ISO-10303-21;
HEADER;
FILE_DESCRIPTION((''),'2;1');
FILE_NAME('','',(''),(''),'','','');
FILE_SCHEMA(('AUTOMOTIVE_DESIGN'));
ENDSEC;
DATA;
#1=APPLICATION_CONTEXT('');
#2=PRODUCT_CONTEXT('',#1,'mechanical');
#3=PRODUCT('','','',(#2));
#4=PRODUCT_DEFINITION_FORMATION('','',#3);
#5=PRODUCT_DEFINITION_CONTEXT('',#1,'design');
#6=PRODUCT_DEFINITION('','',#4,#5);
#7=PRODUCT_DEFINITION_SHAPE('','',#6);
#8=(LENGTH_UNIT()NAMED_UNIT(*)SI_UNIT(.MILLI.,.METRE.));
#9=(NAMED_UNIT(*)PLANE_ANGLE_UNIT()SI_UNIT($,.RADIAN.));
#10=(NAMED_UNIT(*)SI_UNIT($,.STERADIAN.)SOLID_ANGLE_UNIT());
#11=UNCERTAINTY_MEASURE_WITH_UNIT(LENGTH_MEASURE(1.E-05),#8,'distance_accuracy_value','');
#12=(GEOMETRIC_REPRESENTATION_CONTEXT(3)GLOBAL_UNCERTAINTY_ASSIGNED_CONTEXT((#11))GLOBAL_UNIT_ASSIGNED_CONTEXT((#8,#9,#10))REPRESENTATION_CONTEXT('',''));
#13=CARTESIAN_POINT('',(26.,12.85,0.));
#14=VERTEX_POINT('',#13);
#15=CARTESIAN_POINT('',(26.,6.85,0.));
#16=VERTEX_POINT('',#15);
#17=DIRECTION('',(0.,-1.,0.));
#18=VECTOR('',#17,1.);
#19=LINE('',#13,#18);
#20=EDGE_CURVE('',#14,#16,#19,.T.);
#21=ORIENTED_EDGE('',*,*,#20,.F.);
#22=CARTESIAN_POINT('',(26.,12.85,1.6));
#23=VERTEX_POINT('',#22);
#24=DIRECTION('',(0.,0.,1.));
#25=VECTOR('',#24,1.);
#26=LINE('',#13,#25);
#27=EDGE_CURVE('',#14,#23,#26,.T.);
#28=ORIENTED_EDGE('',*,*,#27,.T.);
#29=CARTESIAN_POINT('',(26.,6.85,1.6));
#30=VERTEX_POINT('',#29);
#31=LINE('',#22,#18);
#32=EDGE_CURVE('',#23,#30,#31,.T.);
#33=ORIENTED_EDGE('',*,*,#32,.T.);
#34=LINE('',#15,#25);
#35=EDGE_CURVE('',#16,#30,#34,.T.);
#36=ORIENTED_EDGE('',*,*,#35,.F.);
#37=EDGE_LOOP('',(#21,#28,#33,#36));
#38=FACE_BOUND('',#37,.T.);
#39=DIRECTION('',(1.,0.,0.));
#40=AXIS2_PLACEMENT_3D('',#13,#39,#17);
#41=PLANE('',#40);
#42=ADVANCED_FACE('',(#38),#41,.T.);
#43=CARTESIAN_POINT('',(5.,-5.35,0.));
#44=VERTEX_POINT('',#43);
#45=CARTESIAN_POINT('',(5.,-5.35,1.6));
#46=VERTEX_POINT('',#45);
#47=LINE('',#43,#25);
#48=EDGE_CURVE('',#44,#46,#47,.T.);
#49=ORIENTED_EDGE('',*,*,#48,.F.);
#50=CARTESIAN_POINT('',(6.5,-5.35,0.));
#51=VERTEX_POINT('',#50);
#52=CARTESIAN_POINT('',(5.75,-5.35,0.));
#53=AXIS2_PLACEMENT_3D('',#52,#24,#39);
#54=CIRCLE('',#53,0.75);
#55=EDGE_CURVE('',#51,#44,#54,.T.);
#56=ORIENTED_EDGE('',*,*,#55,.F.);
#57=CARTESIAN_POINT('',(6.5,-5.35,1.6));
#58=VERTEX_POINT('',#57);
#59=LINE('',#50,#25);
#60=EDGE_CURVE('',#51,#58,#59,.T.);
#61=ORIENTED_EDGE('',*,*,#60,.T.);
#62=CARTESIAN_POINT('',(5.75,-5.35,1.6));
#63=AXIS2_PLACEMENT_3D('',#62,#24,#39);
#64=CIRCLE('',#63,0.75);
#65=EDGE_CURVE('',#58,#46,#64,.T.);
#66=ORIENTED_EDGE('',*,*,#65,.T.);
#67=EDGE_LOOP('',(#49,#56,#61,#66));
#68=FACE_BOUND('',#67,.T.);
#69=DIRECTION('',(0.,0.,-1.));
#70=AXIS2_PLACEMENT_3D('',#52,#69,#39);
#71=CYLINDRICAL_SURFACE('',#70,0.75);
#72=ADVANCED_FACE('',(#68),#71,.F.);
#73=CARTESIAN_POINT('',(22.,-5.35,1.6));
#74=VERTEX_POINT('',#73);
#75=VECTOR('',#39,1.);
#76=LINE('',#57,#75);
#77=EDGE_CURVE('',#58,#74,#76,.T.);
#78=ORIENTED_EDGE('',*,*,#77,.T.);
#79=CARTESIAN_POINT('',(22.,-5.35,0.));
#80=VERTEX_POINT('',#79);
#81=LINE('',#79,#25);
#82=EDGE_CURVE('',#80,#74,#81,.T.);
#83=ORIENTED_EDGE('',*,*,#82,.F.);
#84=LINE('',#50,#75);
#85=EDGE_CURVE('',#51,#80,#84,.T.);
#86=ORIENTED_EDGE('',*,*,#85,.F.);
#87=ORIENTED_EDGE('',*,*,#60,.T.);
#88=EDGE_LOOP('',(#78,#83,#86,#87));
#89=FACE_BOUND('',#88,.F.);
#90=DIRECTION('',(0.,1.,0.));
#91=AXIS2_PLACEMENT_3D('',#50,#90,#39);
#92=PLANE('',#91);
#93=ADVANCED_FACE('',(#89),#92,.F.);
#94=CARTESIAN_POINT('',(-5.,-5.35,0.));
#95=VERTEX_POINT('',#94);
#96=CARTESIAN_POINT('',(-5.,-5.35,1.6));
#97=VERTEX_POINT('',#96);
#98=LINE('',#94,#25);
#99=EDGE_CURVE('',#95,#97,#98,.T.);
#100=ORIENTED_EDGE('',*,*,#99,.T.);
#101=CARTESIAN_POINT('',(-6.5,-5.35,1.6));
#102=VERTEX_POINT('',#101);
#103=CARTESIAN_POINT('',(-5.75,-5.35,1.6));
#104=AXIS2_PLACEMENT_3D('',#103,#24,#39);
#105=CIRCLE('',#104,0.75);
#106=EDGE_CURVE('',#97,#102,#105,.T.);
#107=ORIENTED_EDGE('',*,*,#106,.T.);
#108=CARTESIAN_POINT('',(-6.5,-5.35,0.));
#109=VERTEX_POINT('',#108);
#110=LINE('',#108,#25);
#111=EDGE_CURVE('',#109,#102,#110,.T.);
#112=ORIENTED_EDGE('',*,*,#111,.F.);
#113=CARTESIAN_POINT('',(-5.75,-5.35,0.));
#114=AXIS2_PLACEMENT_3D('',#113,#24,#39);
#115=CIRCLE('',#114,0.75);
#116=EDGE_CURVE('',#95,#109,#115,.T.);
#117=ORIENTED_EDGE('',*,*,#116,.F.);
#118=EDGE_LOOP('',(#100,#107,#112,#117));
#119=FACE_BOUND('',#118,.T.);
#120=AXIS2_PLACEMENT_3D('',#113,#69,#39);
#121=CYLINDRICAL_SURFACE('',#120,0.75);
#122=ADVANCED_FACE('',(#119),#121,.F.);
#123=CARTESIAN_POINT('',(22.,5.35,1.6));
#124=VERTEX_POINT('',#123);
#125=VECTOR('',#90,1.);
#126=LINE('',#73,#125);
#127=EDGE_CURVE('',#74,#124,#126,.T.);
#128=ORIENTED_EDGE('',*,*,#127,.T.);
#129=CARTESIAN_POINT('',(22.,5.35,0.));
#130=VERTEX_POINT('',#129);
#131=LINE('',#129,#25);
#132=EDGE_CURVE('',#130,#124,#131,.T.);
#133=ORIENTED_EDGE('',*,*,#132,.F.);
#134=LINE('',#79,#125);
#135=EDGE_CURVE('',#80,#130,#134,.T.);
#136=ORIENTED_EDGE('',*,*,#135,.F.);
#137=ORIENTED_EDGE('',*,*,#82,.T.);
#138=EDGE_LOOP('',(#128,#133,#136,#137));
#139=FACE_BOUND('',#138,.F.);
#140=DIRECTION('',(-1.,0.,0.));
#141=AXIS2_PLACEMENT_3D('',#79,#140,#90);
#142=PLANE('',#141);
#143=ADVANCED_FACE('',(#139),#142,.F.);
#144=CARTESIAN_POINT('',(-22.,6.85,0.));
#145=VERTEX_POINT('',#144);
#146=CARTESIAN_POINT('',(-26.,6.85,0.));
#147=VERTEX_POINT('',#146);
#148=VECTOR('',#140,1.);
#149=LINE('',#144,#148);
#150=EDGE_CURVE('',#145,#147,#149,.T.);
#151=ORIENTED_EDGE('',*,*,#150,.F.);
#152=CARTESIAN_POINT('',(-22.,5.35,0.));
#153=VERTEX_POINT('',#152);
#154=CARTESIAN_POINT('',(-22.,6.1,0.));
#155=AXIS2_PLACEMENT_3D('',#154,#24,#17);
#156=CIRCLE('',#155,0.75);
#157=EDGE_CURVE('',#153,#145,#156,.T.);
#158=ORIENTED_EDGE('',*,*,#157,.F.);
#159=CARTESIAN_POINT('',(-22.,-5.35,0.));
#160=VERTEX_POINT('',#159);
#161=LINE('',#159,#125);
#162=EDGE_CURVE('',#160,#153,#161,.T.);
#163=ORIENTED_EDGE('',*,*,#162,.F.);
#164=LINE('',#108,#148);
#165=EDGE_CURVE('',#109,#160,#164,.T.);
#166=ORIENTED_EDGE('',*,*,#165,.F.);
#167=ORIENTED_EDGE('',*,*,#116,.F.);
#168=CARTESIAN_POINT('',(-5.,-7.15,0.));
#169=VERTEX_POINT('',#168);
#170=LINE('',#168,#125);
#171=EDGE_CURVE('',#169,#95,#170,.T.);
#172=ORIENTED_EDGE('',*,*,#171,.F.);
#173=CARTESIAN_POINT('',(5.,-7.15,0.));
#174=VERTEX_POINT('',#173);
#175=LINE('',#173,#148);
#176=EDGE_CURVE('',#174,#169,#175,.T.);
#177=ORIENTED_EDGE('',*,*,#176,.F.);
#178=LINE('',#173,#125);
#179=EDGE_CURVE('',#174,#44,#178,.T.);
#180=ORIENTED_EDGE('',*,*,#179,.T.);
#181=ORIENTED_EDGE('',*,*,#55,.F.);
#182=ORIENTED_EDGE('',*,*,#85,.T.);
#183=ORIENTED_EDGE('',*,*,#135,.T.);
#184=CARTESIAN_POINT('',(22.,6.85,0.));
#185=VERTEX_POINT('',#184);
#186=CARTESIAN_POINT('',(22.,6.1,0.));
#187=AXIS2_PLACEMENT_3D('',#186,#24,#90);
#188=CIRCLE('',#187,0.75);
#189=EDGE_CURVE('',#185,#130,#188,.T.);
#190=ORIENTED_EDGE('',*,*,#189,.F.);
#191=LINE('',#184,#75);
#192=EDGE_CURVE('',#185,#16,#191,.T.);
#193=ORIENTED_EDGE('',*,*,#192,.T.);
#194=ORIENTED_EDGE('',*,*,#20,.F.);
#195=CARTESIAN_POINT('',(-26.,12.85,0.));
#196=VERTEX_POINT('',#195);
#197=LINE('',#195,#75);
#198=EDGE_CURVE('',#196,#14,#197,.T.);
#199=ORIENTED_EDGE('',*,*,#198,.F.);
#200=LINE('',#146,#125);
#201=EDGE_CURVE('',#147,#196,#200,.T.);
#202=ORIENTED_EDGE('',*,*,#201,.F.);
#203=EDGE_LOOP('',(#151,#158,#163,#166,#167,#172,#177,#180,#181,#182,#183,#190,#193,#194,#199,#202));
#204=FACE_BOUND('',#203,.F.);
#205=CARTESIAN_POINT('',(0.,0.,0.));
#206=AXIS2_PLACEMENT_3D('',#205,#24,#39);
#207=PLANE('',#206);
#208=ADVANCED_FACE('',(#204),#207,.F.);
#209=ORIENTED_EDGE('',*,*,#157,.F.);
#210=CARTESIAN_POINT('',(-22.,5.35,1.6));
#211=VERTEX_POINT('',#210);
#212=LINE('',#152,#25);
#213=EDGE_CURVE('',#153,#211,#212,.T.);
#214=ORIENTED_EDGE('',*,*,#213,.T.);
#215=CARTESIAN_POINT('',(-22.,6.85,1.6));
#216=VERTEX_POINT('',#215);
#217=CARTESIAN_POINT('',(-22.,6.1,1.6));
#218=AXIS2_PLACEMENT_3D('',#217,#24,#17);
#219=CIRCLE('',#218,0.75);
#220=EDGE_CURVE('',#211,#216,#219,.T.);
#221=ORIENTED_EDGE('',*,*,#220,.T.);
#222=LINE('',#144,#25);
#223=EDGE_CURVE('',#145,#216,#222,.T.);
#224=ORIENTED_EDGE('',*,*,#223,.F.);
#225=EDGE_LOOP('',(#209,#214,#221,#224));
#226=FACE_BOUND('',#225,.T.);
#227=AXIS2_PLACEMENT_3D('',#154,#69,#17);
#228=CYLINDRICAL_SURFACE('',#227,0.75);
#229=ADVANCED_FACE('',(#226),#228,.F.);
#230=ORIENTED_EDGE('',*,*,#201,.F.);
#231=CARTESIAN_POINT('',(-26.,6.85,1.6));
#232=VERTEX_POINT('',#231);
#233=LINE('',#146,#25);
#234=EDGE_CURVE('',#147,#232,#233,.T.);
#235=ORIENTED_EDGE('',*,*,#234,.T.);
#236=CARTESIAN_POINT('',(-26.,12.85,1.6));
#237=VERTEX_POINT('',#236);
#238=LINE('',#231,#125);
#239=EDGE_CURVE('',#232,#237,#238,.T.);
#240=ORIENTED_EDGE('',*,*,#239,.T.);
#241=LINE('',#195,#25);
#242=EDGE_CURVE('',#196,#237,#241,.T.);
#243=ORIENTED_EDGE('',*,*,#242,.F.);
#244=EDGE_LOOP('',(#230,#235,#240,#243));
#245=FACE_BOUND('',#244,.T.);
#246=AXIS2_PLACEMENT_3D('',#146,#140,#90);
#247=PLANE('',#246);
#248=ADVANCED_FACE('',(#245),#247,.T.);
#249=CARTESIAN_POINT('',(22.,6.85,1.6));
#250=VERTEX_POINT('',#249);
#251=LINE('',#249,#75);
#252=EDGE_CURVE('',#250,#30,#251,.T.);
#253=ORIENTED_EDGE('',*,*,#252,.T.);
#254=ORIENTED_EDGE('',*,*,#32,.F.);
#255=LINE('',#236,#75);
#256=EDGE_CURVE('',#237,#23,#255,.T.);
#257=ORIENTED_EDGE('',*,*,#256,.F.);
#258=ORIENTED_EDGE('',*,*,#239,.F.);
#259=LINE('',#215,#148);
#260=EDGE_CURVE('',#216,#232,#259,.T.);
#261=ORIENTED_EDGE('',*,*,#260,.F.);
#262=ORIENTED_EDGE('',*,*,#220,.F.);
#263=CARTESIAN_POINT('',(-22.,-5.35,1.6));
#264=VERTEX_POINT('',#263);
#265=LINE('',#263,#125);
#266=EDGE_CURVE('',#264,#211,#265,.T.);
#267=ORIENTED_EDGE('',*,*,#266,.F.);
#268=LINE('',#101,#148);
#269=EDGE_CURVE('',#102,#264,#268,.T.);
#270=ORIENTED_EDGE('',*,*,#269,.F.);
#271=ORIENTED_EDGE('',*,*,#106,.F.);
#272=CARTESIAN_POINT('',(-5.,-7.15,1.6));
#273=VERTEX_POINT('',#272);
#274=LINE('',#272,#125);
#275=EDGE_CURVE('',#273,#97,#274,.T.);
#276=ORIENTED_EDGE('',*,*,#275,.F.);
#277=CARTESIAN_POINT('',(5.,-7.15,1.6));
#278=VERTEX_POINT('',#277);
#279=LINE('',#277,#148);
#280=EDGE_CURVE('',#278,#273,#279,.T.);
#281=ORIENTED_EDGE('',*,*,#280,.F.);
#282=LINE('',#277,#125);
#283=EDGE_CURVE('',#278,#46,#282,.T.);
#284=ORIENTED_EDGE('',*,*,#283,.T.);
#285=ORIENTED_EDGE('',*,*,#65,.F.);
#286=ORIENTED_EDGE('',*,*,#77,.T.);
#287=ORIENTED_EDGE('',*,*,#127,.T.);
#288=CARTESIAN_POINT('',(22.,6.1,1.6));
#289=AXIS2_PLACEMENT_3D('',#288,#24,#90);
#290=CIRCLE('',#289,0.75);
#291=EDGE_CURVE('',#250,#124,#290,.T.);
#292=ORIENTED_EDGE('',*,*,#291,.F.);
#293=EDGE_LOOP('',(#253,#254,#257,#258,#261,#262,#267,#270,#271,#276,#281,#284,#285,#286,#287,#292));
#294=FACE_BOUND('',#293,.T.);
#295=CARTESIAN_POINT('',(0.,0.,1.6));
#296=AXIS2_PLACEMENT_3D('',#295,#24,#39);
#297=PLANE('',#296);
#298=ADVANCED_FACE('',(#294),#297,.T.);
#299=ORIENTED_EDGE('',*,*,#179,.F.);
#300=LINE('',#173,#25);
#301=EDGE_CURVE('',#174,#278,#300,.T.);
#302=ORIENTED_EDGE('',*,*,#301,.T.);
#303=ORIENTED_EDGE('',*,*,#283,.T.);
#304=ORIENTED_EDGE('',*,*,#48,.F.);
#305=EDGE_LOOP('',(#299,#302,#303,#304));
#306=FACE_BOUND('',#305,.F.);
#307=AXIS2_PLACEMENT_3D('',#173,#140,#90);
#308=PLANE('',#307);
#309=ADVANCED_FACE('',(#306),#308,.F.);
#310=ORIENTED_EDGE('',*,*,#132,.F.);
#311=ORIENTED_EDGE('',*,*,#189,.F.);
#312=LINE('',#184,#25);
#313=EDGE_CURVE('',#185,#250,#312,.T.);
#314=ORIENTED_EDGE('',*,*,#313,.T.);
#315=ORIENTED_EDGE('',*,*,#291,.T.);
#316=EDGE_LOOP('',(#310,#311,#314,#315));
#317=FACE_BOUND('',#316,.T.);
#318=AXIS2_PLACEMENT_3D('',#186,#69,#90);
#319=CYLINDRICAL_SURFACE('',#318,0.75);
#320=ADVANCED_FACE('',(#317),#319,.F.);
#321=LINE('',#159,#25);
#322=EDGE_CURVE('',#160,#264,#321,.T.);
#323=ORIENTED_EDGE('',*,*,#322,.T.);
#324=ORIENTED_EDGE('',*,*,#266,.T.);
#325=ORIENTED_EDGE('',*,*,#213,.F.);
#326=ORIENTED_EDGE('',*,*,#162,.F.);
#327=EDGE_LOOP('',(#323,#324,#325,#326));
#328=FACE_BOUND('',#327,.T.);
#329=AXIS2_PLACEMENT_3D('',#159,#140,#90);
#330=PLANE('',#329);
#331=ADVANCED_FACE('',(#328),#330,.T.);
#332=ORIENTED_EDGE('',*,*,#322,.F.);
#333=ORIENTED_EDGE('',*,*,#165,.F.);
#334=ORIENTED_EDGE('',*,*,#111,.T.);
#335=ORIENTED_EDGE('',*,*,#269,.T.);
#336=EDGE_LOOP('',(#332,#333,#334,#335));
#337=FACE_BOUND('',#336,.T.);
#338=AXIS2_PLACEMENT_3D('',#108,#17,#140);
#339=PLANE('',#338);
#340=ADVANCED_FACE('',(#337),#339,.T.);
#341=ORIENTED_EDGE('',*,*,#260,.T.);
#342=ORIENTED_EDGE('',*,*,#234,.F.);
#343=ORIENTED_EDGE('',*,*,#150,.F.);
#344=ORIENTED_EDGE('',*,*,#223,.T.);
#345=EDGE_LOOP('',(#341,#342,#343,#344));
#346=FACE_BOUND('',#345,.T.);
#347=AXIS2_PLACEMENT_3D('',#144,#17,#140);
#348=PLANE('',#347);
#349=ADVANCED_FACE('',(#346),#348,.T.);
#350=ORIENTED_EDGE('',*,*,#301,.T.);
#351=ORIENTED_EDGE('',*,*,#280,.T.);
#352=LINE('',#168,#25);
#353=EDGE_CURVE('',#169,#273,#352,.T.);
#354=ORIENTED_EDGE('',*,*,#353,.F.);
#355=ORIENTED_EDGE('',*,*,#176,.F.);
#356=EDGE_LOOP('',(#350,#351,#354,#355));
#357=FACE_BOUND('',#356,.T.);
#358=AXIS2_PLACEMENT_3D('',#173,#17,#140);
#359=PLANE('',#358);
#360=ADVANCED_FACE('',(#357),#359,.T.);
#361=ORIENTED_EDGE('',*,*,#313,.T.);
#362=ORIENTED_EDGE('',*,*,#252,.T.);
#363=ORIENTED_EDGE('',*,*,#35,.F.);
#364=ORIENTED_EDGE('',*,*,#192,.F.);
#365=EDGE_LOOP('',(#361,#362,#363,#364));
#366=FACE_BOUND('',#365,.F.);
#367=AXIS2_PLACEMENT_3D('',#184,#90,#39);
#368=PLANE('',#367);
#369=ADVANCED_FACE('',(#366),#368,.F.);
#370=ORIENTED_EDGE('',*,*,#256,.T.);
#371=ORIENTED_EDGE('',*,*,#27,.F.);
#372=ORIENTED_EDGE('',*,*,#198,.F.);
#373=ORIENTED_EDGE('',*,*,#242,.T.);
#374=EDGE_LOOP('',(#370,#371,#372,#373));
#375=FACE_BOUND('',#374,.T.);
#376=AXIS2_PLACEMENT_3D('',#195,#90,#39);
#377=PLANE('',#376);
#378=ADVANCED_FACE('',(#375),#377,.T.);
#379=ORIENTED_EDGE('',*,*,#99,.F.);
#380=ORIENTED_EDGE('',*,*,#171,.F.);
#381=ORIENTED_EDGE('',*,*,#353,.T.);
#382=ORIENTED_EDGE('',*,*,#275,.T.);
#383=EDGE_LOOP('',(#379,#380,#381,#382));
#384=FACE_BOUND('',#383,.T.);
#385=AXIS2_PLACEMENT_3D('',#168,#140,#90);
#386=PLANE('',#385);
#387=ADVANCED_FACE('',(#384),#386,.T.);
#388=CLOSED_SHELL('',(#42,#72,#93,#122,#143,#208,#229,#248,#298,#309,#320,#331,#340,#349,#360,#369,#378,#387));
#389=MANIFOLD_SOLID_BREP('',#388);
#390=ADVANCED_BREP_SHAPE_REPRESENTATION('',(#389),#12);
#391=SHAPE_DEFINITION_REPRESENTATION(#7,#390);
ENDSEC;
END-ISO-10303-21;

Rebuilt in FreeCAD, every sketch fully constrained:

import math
import FreeCAD as App
import Part
import Sketcher

doc = App.newDocument("Part")
body = doc.addObject("PartDesign::Body", "Body")

# Sketch on XY plane
sketch1 = body.newObject("Sketcher::SketchObject", "Sketch")
sketch1.AttachmentSupport = (doc.getObject("XY_Plane"), [""])
sketch1.MapMode = "FlatFace"
sketch1.addGeometry([
    Part.LineSegment(App.Vector(26, 12.8, 0), App.Vector(-26, 12.8, 0)),  # 0
    Part.LineSegment(App.Vector(-26, 12.8, 0), App.Vector(-26, 6.8, 0)),  # 1
    Part.LineSegment(App.Vector(-26, 6.8, 0), App.Vector(-22, 6.8, 0)),  # 2
    Part.ArcOfCircle(Part.Circle(App.Vector(-22, 6.1, 0), App.Vector(0, 0, 1), 0.8), math.radians(-90), math.radians(90)),  # 3
    Part.LineSegment(App.Vector(-22, 5.3, 0), App.Vector(-22, -5.3, 0)),  # 4
    Part.LineSegment(App.Vector(-22, -5.3, 0), App.Vector(-6.5, -5.3, 0)),  # 5
    Part.ArcOfCircle(Part.Circle(App.Vector(-5.8, -5.3, 0), App.Vector(0, 0, 1), 0.8), math.radians(0), math.radians(180)),  # 6
    Part.LineSegment(App.Vector(-5, -5.3, 0), App.Vector(-5, -7.2, 0)),  # 7
    Part.LineSegment(App.Vector(-5, -7.2, 0), App.Vector(5, -7.2, 0)),  # 8
    Part.LineSegment(App.Vector(5, -7.2, 0), App.Vector(5, -5.3, 0)),  # 9
    Part.ArcOfCircle(Part.Circle(App.Vector(5.8, -5.3, 0), App.Vector(0, 0, 1), 0.8), math.radians(0), math.radians(180)),  # 10
    Part.LineSegment(App.Vector(6.5, -5.3, 0), App.Vector(22, -5.3, 0)),  # 11
    Part.LineSegment(App.Vector(22, -5.3, 0), App.Vector(22, 5.3, 0)),  # 12
    Part.ArcOfCircle(Part.Circle(App.Vector(22, 6.1, 0), App.Vector(0, 0, 1), 0.8), math.radians(90), math.radians(270)),  # 13
    Part.LineSegment(App.Vector(22, 6.8, 0), App.Vector(26, 6.8, 0)),  # 14
    Part.LineSegment(App.Vector(26, 6.8, 0), App.Vector(26, 12.8, 0)),  # 15
], False)
sketch1.addConstraint([
    Sketcher.Constraint("Coincident", 0, 2, 1, 1),
    Sketcher.Constraint("Coincident", 1, 2, 2, 1),
    Sketcher.Constraint("Tangent", 2, 2, 3, 2),
    Sketcher.Constraint("Coincident", 3, 1, 4, 1),
    Sketcher.Constraint("Coincident", 4, 2, 5, 1),
    Sketcher.Constraint("Coincident", 5, 2, 6, 2),
    Sketcher.Constraint("Tangent", 6, 1, 7, 1),
    Sketcher.Constraint("Coincident", 7, 2, 8, 1),
    Sketcher.Constraint("Coincident", 8, 2, 9, 1),
    Sketcher.Constraint("Tangent", 9, 2, 10, 2),
    Sketcher.Constraint("Coincident", 10, 1, 11, 1),
    Sketcher.Constraint("Coincident", 11, 2, 12, 1),
    Sketcher.Constraint("Coincident", 12, 2, 13, 2),
    Sketcher.Constraint("Tangent", 13, 1, 14, 1),
    Sketcher.Constraint("Coincident", 14, 2, 15, 1),
    Sketcher.Constraint("Coincident", 15, 2, 0, 1),
    Sketcher.Constraint("Horizontal", 0),
    Sketcher.Constraint("Vertical", 1),
    Sketcher.Constraint("Horizontal", 2),
    Sketcher.Constraint("Vertical", 4),
    Sketcher.Constraint("Horizontal", 5),
    Sketcher.Constraint("Vertical", 7),
    Sketcher.Constraint("Horizontal", 8),
    Sketcher.Constraint("Vertical", 9),
    Sketcher.Constraint("Horizontal", 11),
    Sketcher.Constraint("Vertical", 12),
    Sketcher.Constraint("Horizontal", 14),
    Sketcher.Constraint("Vertical", 15),
    Sketcher.Constraint("Equal", 3, 6),
    Sketcher.Constraint("Equal", 6, 10),
    Sketcher.Constraint("Equal", 10, 13),
    Sketcher.Constraint("Symmetric", 3, 1, 11, 2, -1, 1),
    Sketcher.Constraint("Symmetric", 6, 3, 10, 3, -2),
    Sketcher.Constraint("Symmetric", 3, 3, 13, 3, -2),
    Sketcher.Constraint("Horizontal", 10, 3, 4, 2),
    Sketcher.Constraint("Horizontal", 9, 2, 10, 1),
    Sketcher.Constraint("Vertical", 2, 2, 3, 1),
    Sketcher.Constraint("Equal", 2, 14),
    Sketcher.Constraint("DistanceX", 0, 2, 0, 1, 52.0),
    Sketcher.Constraint("DistanceX", 8, 1, 8, 2, 10.0),
    Sketcher.Constraint("DistanceY", 1, 2, 1, 1, 6.0),
    Sketcher.Constraint("Radius", 3, 0.75),
    Sketcher.Constraint("DistanceY", 7, 2, 7, 1, 1.8),
    Sketcher.Constraint("DistanceX", 3, 3, 13, 3, 44.0),
    Sketcher.Constraint("DistanceY", 4, 2, 4, 1, 10.7),
])
pad1 = body.newObject("PartDesign::Pad", "Pad")
pad1.Profile = sketch1
pad1.Length = 1.6

doc.recompute()
